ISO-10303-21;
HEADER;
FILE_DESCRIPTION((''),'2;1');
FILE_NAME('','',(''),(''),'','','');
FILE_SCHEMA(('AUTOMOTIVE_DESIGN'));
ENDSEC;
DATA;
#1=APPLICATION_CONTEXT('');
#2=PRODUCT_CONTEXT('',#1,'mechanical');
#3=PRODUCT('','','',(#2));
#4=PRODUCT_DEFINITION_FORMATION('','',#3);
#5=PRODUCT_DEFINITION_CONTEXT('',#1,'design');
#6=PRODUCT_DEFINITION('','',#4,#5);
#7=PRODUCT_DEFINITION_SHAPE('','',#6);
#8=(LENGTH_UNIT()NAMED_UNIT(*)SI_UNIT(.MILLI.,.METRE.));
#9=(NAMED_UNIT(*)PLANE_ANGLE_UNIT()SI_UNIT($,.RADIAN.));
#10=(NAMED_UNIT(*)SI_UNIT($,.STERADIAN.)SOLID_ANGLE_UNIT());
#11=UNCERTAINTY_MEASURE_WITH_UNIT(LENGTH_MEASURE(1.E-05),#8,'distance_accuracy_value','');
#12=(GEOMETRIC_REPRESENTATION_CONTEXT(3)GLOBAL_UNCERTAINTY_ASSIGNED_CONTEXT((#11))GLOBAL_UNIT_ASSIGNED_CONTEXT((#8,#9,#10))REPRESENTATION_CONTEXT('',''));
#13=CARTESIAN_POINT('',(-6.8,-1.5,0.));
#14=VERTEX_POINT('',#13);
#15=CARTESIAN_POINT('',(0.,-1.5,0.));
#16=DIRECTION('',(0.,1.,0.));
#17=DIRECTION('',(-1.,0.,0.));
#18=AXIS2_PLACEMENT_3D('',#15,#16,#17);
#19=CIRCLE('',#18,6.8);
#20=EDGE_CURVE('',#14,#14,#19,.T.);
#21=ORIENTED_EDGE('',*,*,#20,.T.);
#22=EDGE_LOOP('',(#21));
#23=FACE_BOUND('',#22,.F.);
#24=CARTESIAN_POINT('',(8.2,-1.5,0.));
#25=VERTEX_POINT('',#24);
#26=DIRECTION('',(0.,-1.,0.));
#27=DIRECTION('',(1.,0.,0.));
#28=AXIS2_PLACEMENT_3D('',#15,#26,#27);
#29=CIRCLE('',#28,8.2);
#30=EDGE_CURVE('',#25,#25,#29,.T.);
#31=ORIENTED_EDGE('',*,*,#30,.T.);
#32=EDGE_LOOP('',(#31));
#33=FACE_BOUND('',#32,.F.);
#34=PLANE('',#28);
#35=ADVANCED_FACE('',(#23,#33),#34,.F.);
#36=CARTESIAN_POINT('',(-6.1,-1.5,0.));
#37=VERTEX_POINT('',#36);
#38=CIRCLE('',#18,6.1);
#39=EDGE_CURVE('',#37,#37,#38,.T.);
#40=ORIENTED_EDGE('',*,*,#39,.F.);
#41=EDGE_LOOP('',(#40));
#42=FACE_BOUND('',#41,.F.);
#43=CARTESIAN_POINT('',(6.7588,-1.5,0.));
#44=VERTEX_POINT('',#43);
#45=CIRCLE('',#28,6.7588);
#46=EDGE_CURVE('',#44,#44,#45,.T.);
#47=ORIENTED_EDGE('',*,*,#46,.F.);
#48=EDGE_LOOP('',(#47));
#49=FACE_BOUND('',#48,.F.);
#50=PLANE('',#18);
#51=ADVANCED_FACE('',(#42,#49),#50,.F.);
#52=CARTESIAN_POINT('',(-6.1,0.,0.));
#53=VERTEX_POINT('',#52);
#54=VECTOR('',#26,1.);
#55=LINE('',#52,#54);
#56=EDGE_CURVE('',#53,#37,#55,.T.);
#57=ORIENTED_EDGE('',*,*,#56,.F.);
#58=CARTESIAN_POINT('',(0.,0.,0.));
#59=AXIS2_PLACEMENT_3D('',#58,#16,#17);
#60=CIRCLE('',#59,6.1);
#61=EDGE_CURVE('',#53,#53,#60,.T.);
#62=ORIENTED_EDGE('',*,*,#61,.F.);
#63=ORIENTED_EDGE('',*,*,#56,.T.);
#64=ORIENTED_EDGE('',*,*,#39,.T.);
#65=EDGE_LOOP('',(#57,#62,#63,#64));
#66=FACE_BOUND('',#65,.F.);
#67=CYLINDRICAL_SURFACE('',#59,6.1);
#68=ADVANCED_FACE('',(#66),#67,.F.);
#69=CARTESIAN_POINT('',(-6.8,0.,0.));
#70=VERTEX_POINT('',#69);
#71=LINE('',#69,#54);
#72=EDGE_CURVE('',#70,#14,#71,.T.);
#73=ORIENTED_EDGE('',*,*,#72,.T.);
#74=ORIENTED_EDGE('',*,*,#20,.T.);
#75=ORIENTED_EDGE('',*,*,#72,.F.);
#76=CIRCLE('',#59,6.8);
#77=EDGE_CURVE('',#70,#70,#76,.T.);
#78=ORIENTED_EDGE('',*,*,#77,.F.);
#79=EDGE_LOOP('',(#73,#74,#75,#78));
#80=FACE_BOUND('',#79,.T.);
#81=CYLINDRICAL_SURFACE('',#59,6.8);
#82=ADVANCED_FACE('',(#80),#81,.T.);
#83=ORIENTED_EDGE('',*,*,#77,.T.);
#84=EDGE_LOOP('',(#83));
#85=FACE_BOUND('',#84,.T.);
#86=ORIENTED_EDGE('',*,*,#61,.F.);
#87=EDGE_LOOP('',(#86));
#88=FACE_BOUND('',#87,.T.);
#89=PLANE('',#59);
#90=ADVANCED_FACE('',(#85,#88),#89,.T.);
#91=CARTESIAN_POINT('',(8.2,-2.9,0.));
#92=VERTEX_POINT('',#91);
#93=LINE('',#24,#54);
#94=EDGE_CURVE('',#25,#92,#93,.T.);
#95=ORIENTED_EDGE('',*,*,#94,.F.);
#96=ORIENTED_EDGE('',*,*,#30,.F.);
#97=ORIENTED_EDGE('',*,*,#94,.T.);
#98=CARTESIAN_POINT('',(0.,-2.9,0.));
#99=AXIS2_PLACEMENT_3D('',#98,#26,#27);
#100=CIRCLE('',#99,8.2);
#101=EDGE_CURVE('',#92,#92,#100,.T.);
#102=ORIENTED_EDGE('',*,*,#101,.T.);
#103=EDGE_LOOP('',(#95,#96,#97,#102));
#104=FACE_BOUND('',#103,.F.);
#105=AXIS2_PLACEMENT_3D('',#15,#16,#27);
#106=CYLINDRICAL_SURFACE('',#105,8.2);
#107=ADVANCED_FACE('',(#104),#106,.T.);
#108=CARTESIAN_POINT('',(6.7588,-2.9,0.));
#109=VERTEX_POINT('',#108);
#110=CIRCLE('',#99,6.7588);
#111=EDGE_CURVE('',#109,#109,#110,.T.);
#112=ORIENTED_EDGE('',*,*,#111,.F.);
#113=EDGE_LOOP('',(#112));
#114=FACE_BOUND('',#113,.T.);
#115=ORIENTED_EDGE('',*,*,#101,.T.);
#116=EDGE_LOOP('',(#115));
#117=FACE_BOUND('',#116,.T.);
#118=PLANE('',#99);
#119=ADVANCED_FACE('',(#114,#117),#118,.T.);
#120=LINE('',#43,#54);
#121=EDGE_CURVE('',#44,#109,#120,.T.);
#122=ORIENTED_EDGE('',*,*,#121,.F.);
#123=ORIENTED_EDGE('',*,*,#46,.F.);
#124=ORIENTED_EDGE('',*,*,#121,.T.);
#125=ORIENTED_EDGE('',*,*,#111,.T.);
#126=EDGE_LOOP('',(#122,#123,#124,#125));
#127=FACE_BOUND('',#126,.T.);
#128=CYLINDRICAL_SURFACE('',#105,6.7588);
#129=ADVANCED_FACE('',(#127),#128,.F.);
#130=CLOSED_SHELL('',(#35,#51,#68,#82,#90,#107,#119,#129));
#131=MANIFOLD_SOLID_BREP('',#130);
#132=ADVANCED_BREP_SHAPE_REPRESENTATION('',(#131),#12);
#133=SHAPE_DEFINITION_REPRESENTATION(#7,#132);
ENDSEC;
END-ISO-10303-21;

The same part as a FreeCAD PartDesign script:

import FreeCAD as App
import Part
import Sketcher

V = App.Vector

doc = App.newDocument("Part")
body = doc.addObject("PartDesign::Body", "Body")

# Sketch on XZ plane
sketch1 = body.newObject("Sketcher::SketchObject", "Sketch")
sketch1.AttachmentSupport = (doc.getObject("XZ_Plane"), [""])
sketch1.MapMode = "FlatFace"
sketch1.addGeometry([
    Part.Circle(V(0, 0, 0), V(0, 0, 1), 6.8),
    Part.Circle(V(0, 0, 0), V(0, 0, 1), 6.1),
], False)
sketch1.addConstraint([
    Sketcher.Constraint("Coincident", 0, 3, -1, 1),
    Sketcher.Constraint("Coincident", 1, 3, -1, 1),
    Sketcher.Constraint("Diameter", 0, 13.6),
    Sketcher.Constraint("Diameter", 1, 12.2),
])
pad1 = body.newObject("PartDesign::Pad", "Pad")
pad1.Profile = sketch1
pad1.Length = 1.5

# Sketch on XZ plane
sketch2 = body.newObject("Sketcher::SketchObject", "Sketch001")
sketch2.AttachmentSupport = (doc.getObject("XZ_Plane"), [""])
sketch2.MapMode = "FlatFace"
sketch2.AttachmentOffset = App.Placement(V(0, 0, 1.5), App.Rotation())
sketch2.addGeometry([
    Part.Circle(V(0, 0, 0), V(0, 0, 1), 8.2),
    Part.Circle(V(0, 0, 0), V(0, 0, 1), 6.7588),
], False)
sketch2.addConstraint([
    Sketcher.Constraint("Coincident", 0, 3, -1, 1),
    Sketcher.Constraint("Coincident", 1, 3, -1, 1),
    Sketcher.Constraint("Diameter", 0, 16.4),
    Sketcher.Constraint("Diameter", 1, 13.5176),
])
pad2 = body.newObject("PartDesign::Pad", "Pad001")
pad2.Profile = sketch2
pad2.Length = 1.4

doc.recompute()
